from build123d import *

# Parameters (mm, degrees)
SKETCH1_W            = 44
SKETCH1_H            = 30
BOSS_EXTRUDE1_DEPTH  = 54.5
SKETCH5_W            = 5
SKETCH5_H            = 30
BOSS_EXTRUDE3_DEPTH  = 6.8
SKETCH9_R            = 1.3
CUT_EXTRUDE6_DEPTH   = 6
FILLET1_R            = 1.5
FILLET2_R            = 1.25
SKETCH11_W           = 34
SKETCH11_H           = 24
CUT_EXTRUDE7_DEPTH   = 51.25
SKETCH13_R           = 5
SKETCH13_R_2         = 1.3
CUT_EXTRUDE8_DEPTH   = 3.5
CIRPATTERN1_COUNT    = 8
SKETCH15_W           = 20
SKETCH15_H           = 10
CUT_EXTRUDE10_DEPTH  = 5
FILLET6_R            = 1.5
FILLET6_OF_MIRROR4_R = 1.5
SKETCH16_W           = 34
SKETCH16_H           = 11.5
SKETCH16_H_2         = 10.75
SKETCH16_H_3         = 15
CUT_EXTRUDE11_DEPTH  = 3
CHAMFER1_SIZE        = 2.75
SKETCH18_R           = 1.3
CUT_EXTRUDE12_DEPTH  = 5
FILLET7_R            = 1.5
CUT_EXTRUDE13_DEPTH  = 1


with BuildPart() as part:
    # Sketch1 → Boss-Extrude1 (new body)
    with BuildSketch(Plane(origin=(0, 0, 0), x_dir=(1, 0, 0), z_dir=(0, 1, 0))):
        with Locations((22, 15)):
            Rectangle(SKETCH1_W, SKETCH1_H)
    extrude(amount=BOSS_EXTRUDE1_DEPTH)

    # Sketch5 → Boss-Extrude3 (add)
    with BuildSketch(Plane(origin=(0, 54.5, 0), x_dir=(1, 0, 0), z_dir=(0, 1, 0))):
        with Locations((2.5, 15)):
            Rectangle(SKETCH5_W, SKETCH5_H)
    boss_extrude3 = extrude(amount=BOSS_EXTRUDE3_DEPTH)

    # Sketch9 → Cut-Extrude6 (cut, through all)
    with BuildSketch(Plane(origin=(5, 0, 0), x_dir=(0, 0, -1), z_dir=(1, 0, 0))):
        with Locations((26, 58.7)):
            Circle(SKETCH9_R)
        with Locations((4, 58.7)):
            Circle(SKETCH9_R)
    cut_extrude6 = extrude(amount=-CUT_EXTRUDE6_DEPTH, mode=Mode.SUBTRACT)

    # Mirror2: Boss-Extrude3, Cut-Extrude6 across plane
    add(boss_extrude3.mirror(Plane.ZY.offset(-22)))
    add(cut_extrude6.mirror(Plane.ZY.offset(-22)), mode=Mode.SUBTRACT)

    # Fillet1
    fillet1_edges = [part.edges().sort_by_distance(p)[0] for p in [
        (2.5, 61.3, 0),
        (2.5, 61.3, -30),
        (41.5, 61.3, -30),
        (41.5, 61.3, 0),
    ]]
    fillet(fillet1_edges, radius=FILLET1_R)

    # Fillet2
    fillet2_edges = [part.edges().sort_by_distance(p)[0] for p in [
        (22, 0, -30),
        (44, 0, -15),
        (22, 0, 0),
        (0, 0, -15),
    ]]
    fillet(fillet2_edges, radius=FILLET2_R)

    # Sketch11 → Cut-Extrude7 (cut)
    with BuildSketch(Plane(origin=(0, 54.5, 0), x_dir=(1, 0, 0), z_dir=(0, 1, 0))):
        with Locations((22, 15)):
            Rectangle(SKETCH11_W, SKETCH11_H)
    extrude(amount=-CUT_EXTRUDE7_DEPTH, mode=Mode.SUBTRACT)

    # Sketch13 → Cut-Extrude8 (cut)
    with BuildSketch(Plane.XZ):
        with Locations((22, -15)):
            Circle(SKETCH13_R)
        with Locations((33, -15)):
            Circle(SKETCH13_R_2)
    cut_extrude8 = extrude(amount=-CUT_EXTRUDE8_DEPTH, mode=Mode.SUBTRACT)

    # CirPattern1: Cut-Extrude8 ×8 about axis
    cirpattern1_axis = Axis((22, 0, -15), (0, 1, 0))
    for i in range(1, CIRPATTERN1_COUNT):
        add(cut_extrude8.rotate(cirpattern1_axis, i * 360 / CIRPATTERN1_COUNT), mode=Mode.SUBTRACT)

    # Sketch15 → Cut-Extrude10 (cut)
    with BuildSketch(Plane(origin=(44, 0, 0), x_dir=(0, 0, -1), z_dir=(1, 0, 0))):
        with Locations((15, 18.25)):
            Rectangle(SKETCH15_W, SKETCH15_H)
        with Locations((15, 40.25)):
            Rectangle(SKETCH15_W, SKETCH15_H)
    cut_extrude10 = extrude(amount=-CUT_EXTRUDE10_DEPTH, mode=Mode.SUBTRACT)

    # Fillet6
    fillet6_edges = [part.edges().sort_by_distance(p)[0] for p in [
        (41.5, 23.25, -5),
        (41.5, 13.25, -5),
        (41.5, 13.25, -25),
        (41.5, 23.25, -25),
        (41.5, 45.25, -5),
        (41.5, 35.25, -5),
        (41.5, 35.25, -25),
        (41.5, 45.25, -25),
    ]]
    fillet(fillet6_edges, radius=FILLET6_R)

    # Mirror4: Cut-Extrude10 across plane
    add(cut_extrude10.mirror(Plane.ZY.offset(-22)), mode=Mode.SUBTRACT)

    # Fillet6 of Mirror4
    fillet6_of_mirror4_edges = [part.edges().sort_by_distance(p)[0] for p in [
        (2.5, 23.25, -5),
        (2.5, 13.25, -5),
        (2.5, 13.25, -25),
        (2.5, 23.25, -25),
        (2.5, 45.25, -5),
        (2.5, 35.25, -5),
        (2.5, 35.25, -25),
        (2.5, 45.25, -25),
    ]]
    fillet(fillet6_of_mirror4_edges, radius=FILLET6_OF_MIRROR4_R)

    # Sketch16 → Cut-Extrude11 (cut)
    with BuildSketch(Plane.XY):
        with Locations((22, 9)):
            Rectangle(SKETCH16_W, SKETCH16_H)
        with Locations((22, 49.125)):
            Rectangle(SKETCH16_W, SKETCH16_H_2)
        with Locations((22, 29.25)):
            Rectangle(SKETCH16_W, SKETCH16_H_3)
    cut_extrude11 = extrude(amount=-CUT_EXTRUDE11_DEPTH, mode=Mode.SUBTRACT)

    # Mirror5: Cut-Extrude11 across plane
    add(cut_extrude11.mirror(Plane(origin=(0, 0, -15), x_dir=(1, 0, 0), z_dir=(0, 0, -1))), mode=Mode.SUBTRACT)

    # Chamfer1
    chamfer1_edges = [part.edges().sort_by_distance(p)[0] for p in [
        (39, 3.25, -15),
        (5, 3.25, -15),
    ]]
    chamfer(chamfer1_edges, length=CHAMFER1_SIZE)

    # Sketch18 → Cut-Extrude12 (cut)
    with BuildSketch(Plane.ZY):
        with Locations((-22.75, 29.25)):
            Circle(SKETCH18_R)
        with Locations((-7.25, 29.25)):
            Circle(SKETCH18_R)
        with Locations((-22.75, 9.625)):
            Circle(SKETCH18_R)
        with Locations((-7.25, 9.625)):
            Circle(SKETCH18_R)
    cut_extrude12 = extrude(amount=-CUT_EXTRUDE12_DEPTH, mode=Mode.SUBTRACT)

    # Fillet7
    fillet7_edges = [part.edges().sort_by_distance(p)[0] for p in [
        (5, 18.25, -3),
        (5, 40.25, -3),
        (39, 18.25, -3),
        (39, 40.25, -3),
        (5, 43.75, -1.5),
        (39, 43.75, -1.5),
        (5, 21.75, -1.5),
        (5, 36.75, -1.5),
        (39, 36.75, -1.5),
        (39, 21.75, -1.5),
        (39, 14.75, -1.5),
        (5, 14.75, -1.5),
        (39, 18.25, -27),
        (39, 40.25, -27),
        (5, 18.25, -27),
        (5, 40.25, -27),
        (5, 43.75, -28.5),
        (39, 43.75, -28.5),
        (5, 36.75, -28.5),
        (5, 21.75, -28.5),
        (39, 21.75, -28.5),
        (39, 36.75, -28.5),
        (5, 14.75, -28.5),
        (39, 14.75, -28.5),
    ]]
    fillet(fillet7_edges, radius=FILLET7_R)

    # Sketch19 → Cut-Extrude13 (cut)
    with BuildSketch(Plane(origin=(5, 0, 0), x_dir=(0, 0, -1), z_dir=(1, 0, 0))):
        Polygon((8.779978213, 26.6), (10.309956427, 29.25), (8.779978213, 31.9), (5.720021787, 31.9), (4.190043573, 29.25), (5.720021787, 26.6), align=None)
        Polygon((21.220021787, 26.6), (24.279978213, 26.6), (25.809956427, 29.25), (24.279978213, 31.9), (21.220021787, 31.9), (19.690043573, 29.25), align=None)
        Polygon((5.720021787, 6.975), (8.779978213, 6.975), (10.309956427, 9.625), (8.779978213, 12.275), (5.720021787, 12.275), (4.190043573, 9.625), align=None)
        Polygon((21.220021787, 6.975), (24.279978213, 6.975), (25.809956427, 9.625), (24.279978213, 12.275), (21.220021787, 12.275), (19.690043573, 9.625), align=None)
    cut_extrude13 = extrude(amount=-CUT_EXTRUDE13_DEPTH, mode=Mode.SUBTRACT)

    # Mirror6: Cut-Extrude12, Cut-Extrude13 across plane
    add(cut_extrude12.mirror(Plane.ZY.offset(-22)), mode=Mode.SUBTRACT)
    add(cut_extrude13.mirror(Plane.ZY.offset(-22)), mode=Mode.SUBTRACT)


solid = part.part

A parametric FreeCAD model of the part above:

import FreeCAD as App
import Part
import Sketcher
from FreeCAD import Vector
Q = App.Units.Quantity


def edges_at(feature, points):
    """Names of the edges that pass closest to the given points."""
    edges = feature.Shape.Edges
    near = lambda p: min(range(len(edges)), key=lambda i: edges[i].distToShape(Part.Vertex(*p))[0])
    return sorted({f"Edge{near(p) + 1}" for p in points})

doc = App.newDocument("Part")
body = doc.addObject("PartDesign::Body", "Body")

# Sketch on XZ plane
sketch1 = body.newObject("Sketcher::SketchObject", "Sketch")
sketch1.AttachmentSupport = (doc.getObject("XZ_Plane"), [""])
sketch1.MapMode = "FlatFace"
sketch1.addGeometry(Part.LineSegment(Vector(0, -30, 0), Vector(0, 0, 0)), False)
sketch1.addGeometry(Part.LineSegment(Vector(0, 0, 0), Vector(44, 0, 0)), False)
sketch1.addGeometry(Part.LineSegment(Vector(44, 0, 0), Vector(44, -30, 0)), False)
sketch1.addGeometry(Part.LineSegment(Vector(44, -30, 0), Vector(0, -30, 0)), False)
sketch1.addConstraint(Sketcher.Constraint("Coincident", 0, 2, 1, 1))
sketch1.addConstraint(Sketcher.Constraint("Coincident", 1, 2, 2, 1))
sketch1.addConstraint(Sketcher.Constraint("Coincident", 2, 2, 3, 1))
sketch1.addConstraint(Sketcher.Constraint("Coincident", 3, 2, 0, 1))
sketch1.addConstraint(Sketcher.Constraint("Vertical", 0))
sketch1.addConstraint(Sketcher.Constraint("Horizontal", 1))
sketch1.addConstraint(Sketcher.Constraint("Vertical", 2))
sketch1.addConstraint(Sketcher.Constraint("Horizontal", 3))
sketch1.addConstraint(Sketcher.Constraint("Coincident", 0, 2, -1, 1))
sketch1.addConstraint(Sketcher.Constraint("DistanceX", 1, 1, 1, 2, Q("44 mm")))
sketch1.addConstraint(Sketcher.Constraint("DistanceY", 0, 1, 0, 2, Q("30 mm")))
pad1 = body.newObject("PartDesign::Pad", "Pad")
pad1.Profile = sketch1
pad1.Length = 54.5
pad1.Reversed = True

# Sketch on XZ plane
sketch2 = body.newObject("Sketcher::SketchObject", "Sketch001")
sketch2.AttachmentSupport = (doc.getObject("XZ_Plane"), [""])
sketch2.MapMode = "FlatFace"
sketch2.AttachmentOffset = App.Placement(Vector(0, 0, -54.5), App.Rotation())
sketch2.addGeometry(Part.LineSegment(Vector(0, -30, 0), Vector(0, 0, 0)), False)
sketch2.addGeometry(Part.LineSegment(Vector(0, 0, 0), Vector(5, 0, 0)), False)
sketch2.addGeometry(Part.LineSegment(Vector(5, 0, 0), Vector(5, -30, 0)), False)
sketch2.addGeometry(Part.LineSegment(Vector(5, -30, 0), Vector(0, -30, 0)), False)
sketch2.addConstraint(Sketcher.Constraint("Coincident", 0, 2, 1, 1))
sketch2.addConstraint(Sketcher.Constraint("Coincident", 1, 2, 2, 1))
sketch2.addConstraint(Sketcher.Constraint("Coincident", 2, 2, 3, 1))
sketch2.addConstraint(Sketcher.Constraint("Coincident", 3, 2, 0, 1))
sketch2.addConstraint(Sketcher.Constraint("Vertical", 0))
sketch2.addConstraint(Sketcher.Constraint("Horizontal", 1))
sketch2.addConstraint(Sketcher.Constraint("Vertical", 2))
sketch2.addConstraint(Sketcher.Constraint("Horizontal", 3))
sketch2.addConstraint(Sketcher.Constraint("Coincident", 0, 2, -1, 1))
sketch2.addConstraint(Sketcher.Constraint("DistanceX", 1, 1, 1, 2, Q("5 mm")))
sketch2.addConstraint(Sketcher.Constraint("DistanceY", 0, 1, 0, 2, Q("30 mm")))
pad2 = body.newObject("PartDesign::Pad", "Pad001")
pad2.Profile = sketch2
pad2.Length = 6.8
pad2.Reversed = True

# Sketch on YZ plane
sketch3 = body.newObject("Sketcher::SketchObject", "Sketch002")
sketch3.AttachmentSupport = (doc.getObject("YZ_Plane"), [""])
sketch3.MapMode = "FlatFace"
sketch3.AttachmentOffset = App.Placement(Vector(0, 0, 5), App.Rotation())
sketch3.addGeometry(Part.Circle(Vector(58.7, -26, 0), Vector(0, 0, 1), 1.3), False)
sketch3.addGeometry(Part.Circle(Vector(58.7, -4, 0), Vector(0, 0, 1), 1.3), False)
sketch3.addConstraint(Sketcher.Constraint("Equal", 0, 1))
sketch3.addConstraint(Sketcher.Constraint("Vertical", 0, 3, 1, 3))
sketch3.addConstraint(Sketcher.Constraint("Diameter", 0, Q("2.6 mm")))
sketch3.addConstraint(Sketcher.Constraint("DistanceY", 0, 3, -1, 1, Q("26 mm")))
sketch3.addConstraint(Sketcher.Constraint("DistanceY", 1, 3, -1, 1, Q("4 mm")))
sketch3.addConstraint(Sketcher.Constraint("DistanceX", -1, 1, 0, 3, Q("58.7 mm")))
pocket1 = body.newObject("PartDesign::Pocket", "Pocket")
pocket1.Profile = sketch3
pocket1.Type = "ThroughAll"
doc.recompute()

datumplane = body.newObject("PartDesign::Plane", "DatumPlane")
datumplane.AttachmentSupport = (doc.getObject("YZ_Plane"), [""])
datumplane.MapMode = "FlatFace"
datumplane.AttachmentOffset = App.Placement(Vector(0, 0, 22), App.Rotation())
mirrored = body.newObject("PartDesign::Mirrored", "Mirrored")
mirrored.Originals = [pad2, pocket1]
mirrored.MirrorPlane = (datumplane, [""])
body.Tip = mirrored
doc.recompute()

fillet = body.newObject("PartDesign::Fillet", "Fillet")
fillet.Base = (mirrored, edges_at(mirrored, [
    (2.5, 61.3, 0),
    (2.5, 61.3, -30),
    (41.5, 61.3, -30),
    (41.5, 61.3, 0),
]))
fillet.Radius = 1.5
doc.recompute()

fillet2 = body.newObject("PartDesign::Fillet", "Fillet001")
fillet2.Base = (fillet, edges_at(fillet, [
    (22, 0, -30),
    (44, 0, -15),
    (22, 0, 0),
    (0, 0, -15),
]))
fillet2.Radius = 1.25

# Sketch on XZ plane
sketch4 = body.newObject("Sketcher::SketchObject", "Sketch003")
sketch4.AttachmentSupport = (doc.getObject("XZ_Plane"), [""])
sketch4.MapMode = "FlatFace"
sketch4.AttachmentOffset = App.Placement(Vector(0, 0, -54.5), App.Rotation())
sketch4.addGeometry(Part.LineSegment(Vector(5, -27, 0), Vector(5, -3, 0)), False)
sketch4.addGeometry(Part.LineSegment(Vector(5, -3, 0), Vector(39, -3, 0)), False)
sketch4.addGeometry(Part.LineSegment(Vector(39, -3, 0), Vector(39, -27, 0)), False)
sketch4.addGeometry(Part.LineSegment(Vector(39, -27, 0), Vector(5, -27, 0)), False)
sketch4.addConstraint(Sketcher.Constraint("Coincident", 0, 2, 1, 1))
sketch4.addConstraint(Sketcher.Constraint("Coincident", 1, 2, 2, 1))
sketch4.addConstraint(Sketcher.Constraint("Coincident", 2, 2, 3, 1))
sketch4.addConstraint(Sketcher.Constraint("Coincident", 3, 2, 0, 1))
sketch4.addConstraint(Sketcher.Constraint("Vertical", 0))
sketch4.addConstraint(Sketcher.Constraint("Horizontal", 1))
sketch4.addConstraint(Sketcher.Constraint("Vertical", 2))
sketch4.addConstraint(Sketcher.Constraint("Horizontal", 3))
sketch4.addConstraint(Sketcher.Constraint("DistanceX", 1, 1, 1, 2, Q("34 mm")))
sketch4.addConstraint(Sketcher.Constraint("DistanceY", 0, 1, 0, 2, Q("24 mm")))
sketch4.addConstraint(Sketcher.Constraint("DistanceX", -1, 1, 0, 2, Q("5 mm")))
sketch4.addConstraint(Sketcher.Constraint("DistanceY", 0, 2, -1, 1, Q("3 mm")))
pocket2 = body.newObject("PartDesign::Pocket", "Pocket001")
pocket2.Profile = sketch4
pocket2.Length = 51.25
pocket2.Reversed = True

# Sketch on XZ plane
sketch5 = body.newObject("Sketcher::SketchObject", "Sketch004")
sketch5.AttachmentSupport = (doc.getObject("XZ_Plane"), [""])
sketch5.MapMode = "FlatFace"
sketch5.addGeometry(Part.Circle(Vector(22, -15, 0), Vector(0, 0, 1), 5), False)
sketch5.addGeometry(Part.Circle(Vector(33, -15, 0), Vector(0, 0, 1), 1.3), False)
sketch5.addConstraint(Sketcher.Constraint("Horizontal", 0, 3, 1, 3))
sketch5.addConstraint(Sketcher.Constraint("Diameter", 0, Q("10 mm")))
sketch5.addConstraint(Sketcher.Constraint("Diameter", 1, Q("2.6 mm")))
sketch5.addConstraint(Sketcher.Constraint("DistanceX", -1, 1, 0, 3, Q("22 mm")))
sketch5.addConstraint(Sketcher.Constraint("DistanceY", 0, 3, -1, 1, Q("15 mm")))
sketch5.addConstraint(Sketcher.Constraint("DistanceX", -1, 1, 1, 3, Q("33 mm")))
pocket3 = body.newObject("PartDesign::Pocket", "Pocket002")
pocket3.Profile = sketch5
pocket3.Length = 3.5
doc.recompute()

datumline = body.newObject("PartDesign::Line", "DatumLine")
datumline.Placement = App.Placement(Vector(22, 0, -15), App.Rotation(Vector(0, 0, 1), Vector(0, 1, 0)))
polarpattern = body.newObject("PartDesign::PolarPattern", "PolarPattern")
polarpattern.Originals = [pocket3]
polarpattern.Axis = (datumline, [""])
polarpattern.Angle = 360
polarpattern.Occurrences = 8
body.Tip = polarpattern

# Sketch on YZ plane
sketch6 = body.newObject("Sketcher::SketchObject", "Sketch005")
sketch6.AttachmentSupport = (doc.getObject("YZ_Plane"), [""])
sketch6.MapMode = "FlatFace"
sketch6.AttachmentOffset = App.Placement(Vector(0, 0, 44), App.Rotation())
sketch6.addGeometry(Part.LineSegment(Vector(23.25, -5, 0), Vector(13.25, -5, 0)), False)
sketch6.addGeometry(Part.LineSegment(Vector(13.25, -5, 0), Vector(13.25, -25, 0)), False)
sketch6.addGeometry(Part.LineSegment(Vector(13.25, -25, 0), Vector(23.25, -25, 0)), False)
sketch6.addGeometry(Part.LineSegment(Vector(23.25, -25, 0), Vector(23.25, -5, 0)), False)
sketch6.addGeometry(Part.LineSegment(Vector(45.25, -5, 0), Vector(35.25, -5, 0)), False)
sketch6.addGeometry(Part.LineSegment(Vector(35.25, -5, 0), Vector(35.25, -25, 0)), False)
sketch6.addGeometry(Part.LineSegment(Vector(35.25, -25, 0), Vector(45.25, -25, 0)), False)
sketch6.addGeometry(Part.LineSegment(Vector(45.25, -25, 0), Vector(45.25, -5, 0)), False)
sketch6.addConstraint(Sketcher.Constraint("Coincident", 0, 2, 1, 1))
sketch6.addConstraint(Sketcher.Constraint("Coincident", 1, 2, 2, 1))
sketch6.addConstraint(Sketcher.Constraint("Coincident", 2, 2, 3, 1))
sketch6.addConstraint(Sketcher.Constraint("Coincident", 3, 2, 0, 1))
sketch6.addConstraint(Sketcher.Constraint("Coincident", 4, 2, 5, 1))
sketch6.addConstraint(Sketcher.Constraint("Coincident", 5, 2, 6, 1))
sketch6.addConstraint(Sketcher.Constraint("Coincident", 6, 2, 7, 1))
sketch6.addConstraint(Sketcher.Constraint("Coincident", 7, 2, 4, 1))
sketch6.addConstraint(Sketcher.Constraint("Horizontal", 0))
sketch6.addConstraint(Sketcher.Constraint("Vertical", 1))
sketch6.addConstraint(Sketcher.Constraint("Horizontal", 2))
sketch6.addConstraint(Sketcher.Constraint("Vertical", 3))
sketch6.addConstraint(Sketcher.Constraint("Horizontal", 4))
sketch6.addConstraint(Sketcher.Constraint("Vertical", 5))
sketch6.addConstraint(Sketcher.Constraint("Horizontal", 6))
sketch6.addConstraint(Sketcher.Constraint("Vertical", 7))
sketch6.addConstraint(Sketcher.Constraint("Horizontal", 3, 2, 4, 2))
sketch6.addConstraint(Sketcher.Constraint("Horizontal", 2, 2, 5, 2))
sketch6.addConstraint(Sketcher.Constraint("Equal", 2, 4))
sketch6.addConstraint(Sketcher.Constraint("DistanceX", 0, 2, 0, 1, Q("10 mm")))
sketch6.addConstraint(Sketcher.Constraint("DistanceY", 1, 2, 1, 1, Q("20 mm")))
sketch6.addConstraint(Sketcher.Constraint("DistanceY", 0, 2, -1, 1, Q("5 mm")))
sketch6.addConstraint(Sketcher.Constraint("DistanceX", 3, 2, 4, 2, Q("12 mm")))
sketch6.addConstraint(Sketcher.Constraint("DistanceX", -1, 1, 0, 2, Q("13.25 mm")))
pocket4 = body.newObject("PartDesign::Pocket", "Pocket003")
pocket4.Profile = sketch6
pocket4.Length = 5
doc.recompute()

fillet3 = body.newObject("PartDesign::Fillet", "Fillet002")
fillet3.Base = (pocket4, edges_at(pocket4, [
    (41.5, 23.25, -5),
    (41.5, 13.25, -5),
    (41.5, 13.25, -25),
    (41.5, 23.25, -25),
    (41.5, 45.25, -5),
    (41.5, 35.25, -5),
    (41.5, 35.25, -25),
    (41.5, 45.25, -25),
]))
fillet3.Radius = 1.5
doc.recompute()

datumplane2 = body.newObject("PartDesign::Plane", "DatumPlane001")
datumplane2.AttachmentSupport = (doc.getObject("YZ_Plane"), [""])
datumplane2.MapMode = "FlatFace"
datumplane2.AttachmentOffset = App.Placement(Vector(0, 0, 22), App.Rotation())
mirrored2 = body.newObject("PartDesign::Mirrored", "Mirrored001")
mirrored2.Originals = [pocket4]
mirrored2.MirrorPlane = (datumplane2, [""])
body.Tip = mirrored2
doc.recompute()

fillet4 = body.newObject("PartDesign::Fillet", "Fillet003")
fillet4.Base = (mirrored2, edges_at(mirrored2, [
    (2.5, 23.25, -5),
    (2.5, 13.25, -5),
    (2.5, 13.25, -25),
    (2.5, 23.25, -25),
    (2.5, 45.25, -5),
    (2.5, 35.25, -5),
    (2.5, 35.25, -25),
    (2.5, 45.25, -25),
]))
fillet4.Radius = 1.5

# Sketch on XY plane
sketch7 = body.newObject("Sketcher::SketchObject", "Sketch006")
sketch7.AttachmentSupport = (doc.getObject("XY_Plane"), [""])
sketch7.MapMode = "FlatFace"
sketch7.addGeometry(Part.LineSegment(Vector(5, 14.75, 0), Vector(5, 3.25, 0)), False)
sketch7.addGeometry(Part.LineSegment(Vector(5, 3.25, 0), Vector(39, 3.25, 0)), False)
sketch7.addGeometry(Part.LineSegment(Vector(39, 3.25, 0), Vector(39, 14.75, 0)), False)
sketch7.addGeometry(Part.LineSegment(Vector(39, 14.75, 0), Vector(5, 14.75, 0)), False)
sketch7.addGeometry(Part.LineSegment(Vector(5, 54.5, 0), Vector(5, 43.75, 0)), False)
sketch7.addGeometry(Part.LineSegment(Vector(5, 43.75, 0), Vector(39, 43.75, 0)), False)
sketch7.addGeometry(Part.LineSegment(Vector(39, 43.75, 0), Vector(39, 54.5, 0)), False)
sketch7.addGeometry(Part.LineSegment(Vector(39, 54.5, 0), Vector(5, 54.5, 0)), False)
sketch7.addGeometry(Part.LineSegment(Vector(5, 36.75, 0), Vector(5, 21.75, 0)), False)
sketch7.addGeometry(Part.LineSegment(Vector(5, 21.75, 0), Vector(39, 21.75, 0)), False)
sketch7.addGeometry(Part.LineSegment(Vector(39, 21.75, 0), Vector(39, 36.75, 0)), False)
sketch7.addGeometry(Part.LineSegment(Vector(39, 36.75, 0), Vector(5, 36.75, 0)), False)
sketch7.addConstraint(Sketcher.Constraint("Coincident", 0, 2, 1, 1))
sketch7.addConstraint(Sketcher.Constraint("Coincident", 1, 2, 2, 1))
sketch7.addConstraint(Sketcher.Constraint("Coincident", 2, 2, 3, 1))
sketch7.addConstraint(Sketcher.Constraint("Coincident", 3, 2, 0, 1))
sketch7.addConstraint(Sketcher.Constraint("Coincident", 4, 2, 5, 1))
sketch7.addConstraint(Sketcher.Constraint("Coincident", 5, 2, 6, 1))
sketch7.addConstraint(Sketcher.Constraint("Coincident", 6, 2, 7, 1))
sketch7.addConstraint(Sketcher.Constraint("Coincident", 7, 2, 4, 1))
sketch7.addConstraint(Sketcher.Constraint("Coincident", 8, 2, 9, 1))
sketch7.addConstraint(Sketcher.Constraint("Coincident", 9, 2, 10, 1))
sketch7.addConstraint(Sketcher.Constraint("Coincident", 10, 2, 11, 1))
sketch7.addConstraint(Sketcher.Constraint("Coincident", 11, 2, 8, 1))
sketch7.addConstraint(Sketcher.Constraint("Vertical", 0))
sketch7.addConstraint(Sketcher.Constraint("Horizontal", 1))
sketch7.addConstraint(Sketcher.Constraint("Vertical", 2))
sketch7.addConstraint(Sketcher.Constraint("Horizontal", 3))
sketch7.addConstraint(Sketcher.Constraint("Vertical", 4))
sketch7.addConstraint(Sketcher.Constraint("Horizontal", 5))
sketch7.addConstraint(Sketcher.Constraint("Vertical", 6))
sketch7.addConstraint(Sketcher.Constraint("Horizontal", 7))
sketch7.addConstraint(Sketcher.Constraint("Vertical", 8))
sketch7.addConstraint(Sketcher.Constraint("Horizontal", 9))
sketch7.addConstraint(Sketcher.Constraint("Vertical", 10))
sketch7.addConstraint(Sketcher.Constraint("Horizontal", 11))
sketch7.addConstraint(Sketcher.Constraint("Vertical", 3, 2, 4, 2))
sketch7.addConstraint(Sketcher.Constraint("Vertical", 2, 2, 5, 2))
sketch7.addConstraint(Sketcher.Constraint("Vertical", 7, 2, 8, 2))
sketch7.addConstraint(Sketcher.Constraint("Vertical", 6, 2, 9, 2))
sketch7.addConstraint(Sketcher.Constraint("DistanceX", 1, 1, 1, 2, Q("34 mm")))
sketch7.addConstraint(Sketcher.Constraint("DistanceY", 8, 2, 8, 1, Q("15 mm")))
sketch7.addConstraint(Sketcher.Constraint("DistanceY", 0, 2, 0, 1, Q("11.5 mm")))
sketch7.addConstraint(Sketcher.Constraint("DistanceX", -1, 1, 0, 2, Q("5 mm")))
sketch7.addConstraint(Sketcher.Constraint("DistanceY", 3, 2, 4, 2, Q("29 mm")))
sketch7.addConstraint(Sketcher.Constraint("DistanceY", 3, 2, 8, 2, Q("7 mm")))
sketch7.addConstraint(Sketcher.Constraint("DistanceY", 4, 2, 4, 1, Q("10.75 mm")))
sketch7.addConstraint(Sketcher.Constraint("DistanceY", -1, 1, 6, 2, Q("54.5 mm")))
pocket5 = body.newObject("PartDesign::Pocket", "Pocket004")
pocket5.Profile = sketch7
pocket5.Length = 3
doc.recompute()

datumplane3 = body.newObject("PartDesign::Plane", "DatumPlane002")
datumplane3.AttachmentSupport = (doc.getObject("XY_Plane"), [""])
datumplane3.MapMode = "FlatFace"
datumplane3.AttachmentOffset = App.Placement(Vector(0, 0, -15), App.Rotation())
mirrored3 = body.newObject("PartDesign::Mirrored", "Mirrored002")
mirrored3.Originals = [pocket5]
mirrored3.MirrorPlane = (datumplane3, [""])
body.Tip = mirrored3
doc.recompute()

chamfer = body.newObject("PartDesign::Chamfer", "Chamfer")
chamfer.Base = (mirrored3, edges_at(mirrored3, [(39, 3.25, -15), (5, 3.25, -15)]))
chamfer.Size = 2.75

# Sketch on YZ plane
sketch8 = body.newObject("Sketcher::SketchObject", "Sketch007")
sketch8.AttachmentSupport = (doc.getObject("YZ_Plane"), [""])
sketch8.MapMode = "FlatFace"
sketch8.addGeometry(Part.Circle(Vector(29.25, -22.75, 0), Vector(0, 0, 1), 1.3), False)
sketch8.addGeometry(Part.Circle(Vector(29.25, -7.25, 0), Vector(0, 0, 1), 1.3), False)
sketch8.addGeometry(Part.Circle(Vector(9.625, -22.75, 0), Vector(0, 0, 1), 1.3), False)
sketch8.addGeometry(Part.Circle(Vector(9.625, -7.25, 0), Vector(0, 0, 1), 1.3), False)
sketch8.addConstraint(Sketcher.Constraint("Equal", 0, 1))
sketch8.addConstraint(Sketcher.Constraint("Equal", 1, 2))
sketch8.addConstraint(Sketcher.Constraint("Equal", 2, 3))
sketch8.addConstraint(Sketcher.Constraint("Horizontal", 0, 3, 2, 3))
sketch8.addConstraint(Sketcher.Constraint("Horizontal", 1, 3, 3, 3))
sketch8.addConstraint(Sketcher.Constraint("Vertical", 0, 3, 1, 3))
sketch8.addConstraint(Sketcher.Constraint("Vertical", 2, 3, 3, 3))
sketch8.addConstraint(Sketcher.Constraint("Diameter", 0, Q("2.6 mm")))
sketch8.addConstraint(Sketcher.Constraint("DistanceY", 0, 3, 1, 3, Q("15.5 mm")))
sketch8.addConstraint(Sketcher.Constraint("DistanceX", -1, 1, 0, 3, Q("29.25 mm")))
sketch8.addConstraint(Sketcher.Constraint("DistanceY", 0, 3, -1, 1, Q("22.75 mm")))
sketch8.addConstraint(Sketcher.Constraint("DistanceX", -1, 1, 2, 3, Q("9.625 mm")))
pocket6 = body.newObject("PartDesign::Pocket", "Pocket005")
pocket6.Profile = sketch8
pocket6.Length = 5
pocket6.Reversed = True
doc.recompute()

fillet5 = body.newObject("PartDesign::Fillet", "Fillet004")
fillet5.Base = (pocket6, edges_at(pocket6, [
    (5, 18.25, -3),
    (5, 40.25, -3),
    (39, 18.25, -3),
    (39, 40.25, -3),
    (5, 43.75, -1.5),
    (39, 43.75, -1.5),
    (5, 21.75, -1.5),
    (5, 36.75, -1.5),
    (39, 36.75, -1.5),
    (39, 21.75, -1.5),
    (39, 14.75, -1.5),
    (5, 14.75, -1.5),
    (39, 18.25, -27),
    (39, 40.25, -27),
    (5, 18.25, -27),
    (5, 40.25, -27),
    (5, 43.75, -28.5),
    (39, 43.75, -28.5),
    (5, 36.75, -28.5),
    (5, 21.75, -28.5),
    (39, 21.75, -28.5),
    (39, 36.75, -28.5),
    (5, 14.75, -28.5),
    (39, 14.75, -28.5),
]))
fillet5.Radius = 1.5

# Sketch on YZ plane
sketch9 = body.newObject("Sketcher::SketchObject", "Sketch008")
sketch9.AttachmentSupport = (doc.getObject("YZ_Plane"), [""])
sketch9.MapMode = "FlatFace"
sketch9.AttachmentOffset = App.Placement(Vector(0, 0, 5), App.Rotation())
sketch9.addGeometry(Part.LineSegment(Vector(26.6, -8.779978, 0), Vector(29.25, -10.309956, 0)), False)
sketch9.addGeometry(Part.LineSegment(Vector(29.25, -10.309956, 0), Vector(31.9, -8.779978, 0)), False)
sketch9.addGeometry(Part.LineSegment(Vector(31.9, -8.779978, 0), Vector(31.9, -5.720022, 0)), False)
sketch9.addGeometry(Part.LineSegment(Vector(31.9, -5.720022, 0), Vector(29.25, -4.190044, 0)), False)
sketch9.addGeometry(Part.LineSegment(Vector(29.25, -4.190044, 0), Vector(26.6, -5.720022, 0)), False)
sketch9.addGeometry(Part.LineSegment(Vector(26.6, -5.720022, 0), Vector(26.6, -8.779978, 0)), False)
sketch9.addGeometry(Part.LineSegment(Vector(26.6, -21.220022, 0), Vector(26.6, -24.279978, 0)), False)
sketch9.addGeometry(Part.LineSegment(Vector(26.6, -24.279978, 0), Vector(29.25, -25.809956, 0)), False)
sketch9.addGeometry(Part.LineSegment(Vector(29.25, -25.809956, 0), Vector(31.9, -24.279978, 0)), False)
sketch9.addGeometry(Part.LineSegment(Vector(31.9, -24.279978, 0), Vector(31.9, -21.220022, 0)), False)
sketch9.addGeometry(Part.LineSegment(Vector(31.9, -21.220022, 0), Vector(29.25, -19.690044, 0)), False)
sketch9.addGeometry(Part.LineSegment(Vector(29.25, -19.690044, 0), Vector(26.6, -21.220022, 0)), False)
sketch9.addGeometry(Part.LineSegment(Vector(6.975, -5.720022, 0), Vector(6.975, -8.779978, 0)), False)
sketch9.addGeometry(Part.LineSegment(Vector(6.975, -8.779978, 0), Vector(9.625, -10.309956, 0)), False)
sketch9.addGeometry(Part.LineSegment(Vector(9.625, -10.309956, 0), Vector(12.275, -8.779978, 0)), False)
sketch9.addGeometry(Part.LineSegment(Vector(12.275, -8.779978, 0), Vector(12.275, -5.720022, 0)), False)
sketch9.addGeometry(Part.LineSegment(Vector(12.275, -5.720022, 0), Vector(9.625, -4.190044, 0)), False)
sketch9.addGeometry(Part.LineSegment(Vector(9.625, -4.190044, 0), Vector(6.975, -5.720022, 0)), False)
sketch9.addGeometry(Part.LineSegment(Vector(6.975, -21.220022, 0), Vector(6.975, -24.279978, 0)), False)
sketch9.addGeometry(Part.LineSegment(Vector(6.975, -24.279978, 0), Vector(9.625, -25.809956, 0)), False)
sketch9.addGeometry(Part.LineSegment(Vector(9.625, -25.809956, 0), Vector(12.275, -24.279978, 0)), False)
sketch9.addGeometry(Part.LineSegment(Vector(12.275, -24.279978, 0), Vector(12.275, -21.220022, 0)), False)
sketch9.addGeometry(Part.LineSegment(Vector(12.275, -21.220022, 0), Vector(9.625, -19.690044, 0)), False)
sketch9.addGeometry(Part.LineSegment(Vector(9.625, -19.690044, 0), Vector(6.975, -21.220022, 0)), False)
sketch9.addConstraint(Sketcher.Constraint("Coincident", 0, 2, 1, 1))
sketch9.addConstraint(Sketcher.Constraint("Coincident", 1, 2, 2, 1))
sketch9.addConstraint(Sketcher.Constraint("Coincident", 2, 2, 3, 1))
sketch9.addConstraint(Sketcher.Constraint("Coincident", 3, 2, 4, 1))
sketch9.addConstraint(Sketcher.Constraint("Coincident", 4, 2, 5, 1))
sketch9.addConstraint(Sketcher.Constraint("Coincident", 5, 2, 0, 1))
sketch9.addConstraint(Sketcher.Constraint("Coincident", 6, 2, 7, 1))
sketch9.addConstraint(Sketcher.Constraint("Coincident", 7, 2, 8, 1))
sketch9.addConstraint(Sketcher.Constraint("Coincident", 8, 2, 9, 1))
sketch9.addConstraint(Sketcher.Constraint("Coincident", 9, 2, 10, 1))
sketch9.addConstraint(Sketcher.Constraint("Coincident", 10, 2, 11, 1))
sketch9.addConstraint(Sketcher.Constraint("Coincident", 11, 2, 6, 1))
sketch9.addConstraint(Sketcher.Constraint("Coincident", 12, 2, 13, 1))
sketch9.addConstraint(Sketcher.Constraint("Coincident", 13, 2, 14, 1))
sketch9.addConstraint(Sketcher.Constraint("Coincident", 14, 2, 15, 1))
sketch9.addConstraint(Sketcher.Constraint("Coincident", 15, 2, 16, 1))
sketch9.addConstraint(Sketcher.Constraint("Coincident", 16, 2, 17, 1))
sketch9.addConstraint(Sketcher.Constraint("Coincident", 17, 2, 12, 1))
sketch9.addConstraint(Sketcher.Constraint("Coincident", 18, 2, 19, 1))
sketch9.addConstraint(Sketcher.Constraint("Coincident", 19, 2, 20, 1))
sketch9.addConstraint(Sketcher.Constraint("Coincident", 20, 2, 21, 1))
sketch9.addConstraint(Sketcher.Constraint("Coincident", 21, 2, 22, 1))
sketch9.addConstraint(Sketcher.Constraint("Coincident", 22, 2, 23, 1))
sketch9.addConstraint(Sketcher.Constraint("Coincident", 23, 2, 18, 1))
sketch9.addConstraint(Sketcher.Constraint("Vertical", 2))
sketch9.addConstraint(Sketcher.Constraint("Vertical", 5))
sketch9.addConstraint(Sketcher.Constraint("Vertical", 6))
sketch9.addConstraint(Sketcher.Constraint("Vertical", 9))
sketch9.addConstraint(Sketcher.Constraint("Vertical", 12))
sketch9.addConstraint(Sketcher.Constraint("Vertical", 15))
sketch9.addConstraint(Sketcher.Constraint("Vertical", 18))
sketch9.addConstraint(Sketcher.Constraint("Vertical", 21))
sketch9.addConstraint(Sketcher.Constraint("Parallel", 0, 3))
sketch9.addConstraint(Sketcher.Constraint("Parallel", 1, 4))
sketch9.addConstraint(Sketcher.Constraint("Parallel", 3, 7))
sketch9.addConstraint(Sketcher.Constraint("Parallel", 4, 8))
sketch9.addConstraint(Sketcher.Constraint("Parallel", 7, 10))
sketch9.addConstraint(Sketcher.Constraint("Parallel", 8, 11))
sketch9.addConstraint(Sketcher.Constraint("Parallel", 10, 13))
sketch9.addConstraint(Sketcher.Constraint("Parallel", 11, 14))
sketch9.addConstraint(Sketcher.Constraint("Parallel", 13, 16))
sketch9.addConstraint(Sketcher.Constraint("Parallel", 14, 17))
sketch9.addConstraint(Sketcher.Constraint("Parallel", 16, 19))
sketch9.addConstraint(Sketcher.Constraint("Parallel", 17, 20))
sketch9.addConstraint(Sketcher.Constraint("Parallel", 19, 22))
sketch9.addConstraint(Sketcher.Constraint("Parallel", 20, 23))
sketch9.addConstraint(Sketcher.Constraint("Horizontal", 2, 2, 4, 2))
sketch9.addConstraint(Sketcher.Constraint("Horizontal", 1, 2, 5, 2))
sketch9.addConstraint(Sketcher.Constraint("Horizontal", 6, 2, 8, 2))
sketch9.addConstraint(Sketcher.Constraint("Horizontal", 9, 2, 11, 2))
sketch9.addConstraint(Sketcher.Constraint("Horizontal", 5, 2, 12, 2))
sketch9.addConstraint(Sketcher.Constraint("Horizontal", 0, 2, 13, 2))
sketch9.addConstraint(Sketcher.Constraint("Horizontal", 12, 2, 14, 2))
sketch9.addConstraint(Sketcher.Constraint("Horizontal", 4, 2, 15, 2))
sketch9.addConstraint(Sketcher.Constraint("Horizontal", 3, 2, 16, 2))
sketch9.addConstraint(Sketcher.Constraint("Horizontal", 8, 2, 18, 2))
sketch9.addConstraint(Sketcher.Constraint("Horizontal", 7, 2, 19, 2))
sketch9.addConstraint(Sketcher.Constraint("Horizontal", 18, 2, 20, 2))
sketch9.addConstraint(Sketcher.Constraint("Horizontal", 11, 2, 21, 2))
sketch9.addConstraint(Sketcher.Constraint("Horizontal", 10, 2, 22, 2))
sketch9.addConstraint(Sketcher.Constraint("Vertical", 0, 2, 3, 2))
sketch9.addConstraint(Sketcher.Constraint("Vertical", 5, 2, 6, 2))
sketch9.addConstraint(Sketcher.Constraint("Vertical", 3, 2, 7, 2))
sketch9.addConstraint(Sketcher.Constraint("Vertical", 17, 2, 18, 2))
sketch9.addConstraint(Sketcher.Constraint("Equal", 5, 6))
sketch9.addConstraint(Sketcher.Constraint("Angle", 0, Q("-30 deg")))
sketch9.addConstraint(Sketcher.Constraint("DistanceX", -1, 1, 1, 2, Q("31.9 mm")))
sketch9.addConstraint(Sketcher.Constraint("DistanceX", -1, 1, 4, 2, Q("26.6 mm")))
sketch9.addConstraint(Sketcher.Constraint("DistanceY", 6, 2, 5, 2, Q("15.5 mm")))
sketch9.addConstraint(Sketcher.Constraint("DistanceX", -1, 1, 12, 2, Q("6.975 mm")))
sketch9.addConstraint(Sketcher.Constraint("DistanceY", 2, 1, 2, 2, Q("3.059956 mm")))
sketch9.addConstraint(Sketcher.Constraint("DistanceY", 1, 2, -1, 1, Q("8.779978 mm")))
pocket7 = body.newObject("PartDesign::Pocket", "Pocket006")
pocket7.Profile = sketch9
pocket7.Length = 1
doc.recompute()

datumplane4 = body.newObject("PartDesign::Plane", "DatumPlane003")
datumplane4.AttachmentSupport = (doc.getObject("YZ_Plane"), [""])
datumplane4.MapMode = "FlatFace"
datumplane4.AttachmentOffset = App.Placement(Vector(0, 0, 22), App.Rotation())
mirrored4 = body.newObject("PartDesign::Mirrored", "Mirrored003")
mirrored4.Originals = [pocket6, pocket7]
mirrored4.MirrorPlane = (datumplane4, [""])
body.Tip = mirrored4

doc.recompute()
